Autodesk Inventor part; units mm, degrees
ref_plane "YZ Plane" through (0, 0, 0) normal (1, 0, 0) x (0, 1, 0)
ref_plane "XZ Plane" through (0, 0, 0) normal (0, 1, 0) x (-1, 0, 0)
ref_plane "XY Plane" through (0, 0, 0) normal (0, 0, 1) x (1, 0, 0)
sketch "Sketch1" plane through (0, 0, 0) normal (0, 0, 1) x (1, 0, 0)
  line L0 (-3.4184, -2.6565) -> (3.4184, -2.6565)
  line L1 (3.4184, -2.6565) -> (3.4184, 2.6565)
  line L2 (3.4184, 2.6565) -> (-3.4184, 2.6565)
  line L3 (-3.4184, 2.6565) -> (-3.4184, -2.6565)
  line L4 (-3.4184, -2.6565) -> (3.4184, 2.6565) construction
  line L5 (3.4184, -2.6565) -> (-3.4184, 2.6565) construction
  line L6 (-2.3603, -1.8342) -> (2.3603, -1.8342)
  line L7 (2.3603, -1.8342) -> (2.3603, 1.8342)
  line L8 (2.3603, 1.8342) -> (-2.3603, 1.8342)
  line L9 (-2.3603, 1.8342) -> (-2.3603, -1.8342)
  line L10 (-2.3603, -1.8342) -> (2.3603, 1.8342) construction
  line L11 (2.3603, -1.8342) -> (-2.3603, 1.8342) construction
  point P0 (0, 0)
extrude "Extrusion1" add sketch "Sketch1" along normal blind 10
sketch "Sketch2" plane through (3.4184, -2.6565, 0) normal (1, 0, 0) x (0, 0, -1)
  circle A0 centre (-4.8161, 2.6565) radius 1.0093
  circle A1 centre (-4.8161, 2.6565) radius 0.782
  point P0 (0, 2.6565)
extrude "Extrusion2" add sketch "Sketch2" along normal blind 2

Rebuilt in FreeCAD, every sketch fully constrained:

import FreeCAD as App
import Part
import Sketcher
from FreeCAD import Vector

doc = App.newDocument("Part")
body = doc.addObject("PartDesign::Body", "Body")

sketch1 = body.newObject("Sketcher::SketchObject", "Sketch")
sketch1.AttachmentSupport = (doc.getObject("XY_Plane"), [""])
sketch1.MapMode = "FlatFace"
sketch1.addGeometry([
    Part.LineSegment(Vector(-3.4184, 2.6565, 0), Vector(-3.4184, -2.6565, 0)),
    Part.LineSegment(Vector(-3.4184, -2.6565, 0), Vector(3.4184, -2.6565, 0)),
    Part.LineSegment(Vector(3.4184, -2.6565, 0), Vector(3.4184, 2.6565, 0)),
    Part.LineSegment(Vector(3.4184, 2.6565, 0), Vector(-3.4184, 2.6565, 0)),
    Part.LineSegment(Vector(2.3603, -1.8342, 0), Vector(-2.3603, -1.8342, 0)),
    Part.LineSegment(Vector(-2.3603, -1.8342, 0), Vector(-2.3603, 1.8342, 0)),
    Part.LineSegment(Vector(-2.3603, 1.8342, 0), Vector(2.3603, 1.8342, 0)),
    Part.LineSegment(Vector(2.3603, 1.8342, 0), Vector(2.3603, -1.8342, 0)),
], False)
sketch1.addConstraint([
    Sketcher.Constraint("Coincident", 0, 2, 1, 1),
    Sketcher.Constraint("Coincident", 1, 2, 2, 1),
    Sketcher.Constraint("Coincident", 2, 2, 3, 1),
    Sketcher.Constraint("Coincident", 3, 2, 0, 1),
    Sketcher.Constraint("Coincident", 4, 2, 5, 1),
    Sketcher.Constraint("Coincident", 5, 2, 6, 1),
    Sketcher.Constraint("Coincident", 6, 2, 7, 1),
    Sketcher.Constraint("Coincident", 7, 2, 4, 1),
    Sketcher.Constraint("Vertical", 0),
    Sketcher.Constraint("Horizontal", 1),
    Sketcher.Constraint("Vertical", 2),
    Sketcher.Constraint("Horizontal", 3),
    Sketcher.Constraint("Horizontal", 4),
    Sketcher.Constraint("Vertical", 5),
    Sketcher.Constraint("Horizontal", 6),
    Sketcher.Constraint("Vertical", 7),
    Sketcher.Constraint("Symmetric", 0, 2, 2, 2, -1, 1),
    Sketcher.Constraint("Symmetric", 4, 2, 6, 2, -1, 1),
    Sketcher.Constraint("DistanceY", 0, 2, 0, 1, 5.313),
    Sketcher.Constraint("DistanceX", 1, 1, 1, 2, 6.8368),
    Sketcher.Constraint("DistanceX", 4, 2, 4, 1, 4.7206),
    Sketcher.Constraint("DistanceY", 5, 1, 5, 2, 3.6684),
])
pad1 = body.newObject("PartDesign::Pad", "Pad")
pad1.Profile = sketch1
pad1.Length = 10

sketch2 = body.newObject("Sketcher::SketchObject", "Sketch001")
sketch2.AttachmentSupport = (doc.getObject("YZ_Plane"), [""])
sketch2.MapMode = "FlatFace"
sketch2.AttachmentOffset = App.Placement(Vector(0, 0, 3.4184), App.Rotation())
sketch2.addGeometry([
    Part.Circle(Vector(0, 4.8161, 0), Vector(0, 0, 1), 1.0093),
    Part.Circle(Vector(0, 4.8161, 0), Vector(0, 0, 1), 0.782),
], False)
sketch2.addConstraint([
    Sketcher.Constraint("Coincident", 1, 3, 0, 3),
    Sketcher.Constraint("PointOnObject", 0, 3, -2),
    Sketcher.Constraint("Diameter", 1, 1.564),
    Sketcher.Constraint("Diameter", 0, 2.0186),
    Sketcher.Constraint("DistanceY", -1, 1, 0, 3, 4.816),
])
pad2 = body.newObject("PartDesign::Pad", "Pad001")
pad2.Profile = sketch2
pad2.Length = 2

doc.recompute()
